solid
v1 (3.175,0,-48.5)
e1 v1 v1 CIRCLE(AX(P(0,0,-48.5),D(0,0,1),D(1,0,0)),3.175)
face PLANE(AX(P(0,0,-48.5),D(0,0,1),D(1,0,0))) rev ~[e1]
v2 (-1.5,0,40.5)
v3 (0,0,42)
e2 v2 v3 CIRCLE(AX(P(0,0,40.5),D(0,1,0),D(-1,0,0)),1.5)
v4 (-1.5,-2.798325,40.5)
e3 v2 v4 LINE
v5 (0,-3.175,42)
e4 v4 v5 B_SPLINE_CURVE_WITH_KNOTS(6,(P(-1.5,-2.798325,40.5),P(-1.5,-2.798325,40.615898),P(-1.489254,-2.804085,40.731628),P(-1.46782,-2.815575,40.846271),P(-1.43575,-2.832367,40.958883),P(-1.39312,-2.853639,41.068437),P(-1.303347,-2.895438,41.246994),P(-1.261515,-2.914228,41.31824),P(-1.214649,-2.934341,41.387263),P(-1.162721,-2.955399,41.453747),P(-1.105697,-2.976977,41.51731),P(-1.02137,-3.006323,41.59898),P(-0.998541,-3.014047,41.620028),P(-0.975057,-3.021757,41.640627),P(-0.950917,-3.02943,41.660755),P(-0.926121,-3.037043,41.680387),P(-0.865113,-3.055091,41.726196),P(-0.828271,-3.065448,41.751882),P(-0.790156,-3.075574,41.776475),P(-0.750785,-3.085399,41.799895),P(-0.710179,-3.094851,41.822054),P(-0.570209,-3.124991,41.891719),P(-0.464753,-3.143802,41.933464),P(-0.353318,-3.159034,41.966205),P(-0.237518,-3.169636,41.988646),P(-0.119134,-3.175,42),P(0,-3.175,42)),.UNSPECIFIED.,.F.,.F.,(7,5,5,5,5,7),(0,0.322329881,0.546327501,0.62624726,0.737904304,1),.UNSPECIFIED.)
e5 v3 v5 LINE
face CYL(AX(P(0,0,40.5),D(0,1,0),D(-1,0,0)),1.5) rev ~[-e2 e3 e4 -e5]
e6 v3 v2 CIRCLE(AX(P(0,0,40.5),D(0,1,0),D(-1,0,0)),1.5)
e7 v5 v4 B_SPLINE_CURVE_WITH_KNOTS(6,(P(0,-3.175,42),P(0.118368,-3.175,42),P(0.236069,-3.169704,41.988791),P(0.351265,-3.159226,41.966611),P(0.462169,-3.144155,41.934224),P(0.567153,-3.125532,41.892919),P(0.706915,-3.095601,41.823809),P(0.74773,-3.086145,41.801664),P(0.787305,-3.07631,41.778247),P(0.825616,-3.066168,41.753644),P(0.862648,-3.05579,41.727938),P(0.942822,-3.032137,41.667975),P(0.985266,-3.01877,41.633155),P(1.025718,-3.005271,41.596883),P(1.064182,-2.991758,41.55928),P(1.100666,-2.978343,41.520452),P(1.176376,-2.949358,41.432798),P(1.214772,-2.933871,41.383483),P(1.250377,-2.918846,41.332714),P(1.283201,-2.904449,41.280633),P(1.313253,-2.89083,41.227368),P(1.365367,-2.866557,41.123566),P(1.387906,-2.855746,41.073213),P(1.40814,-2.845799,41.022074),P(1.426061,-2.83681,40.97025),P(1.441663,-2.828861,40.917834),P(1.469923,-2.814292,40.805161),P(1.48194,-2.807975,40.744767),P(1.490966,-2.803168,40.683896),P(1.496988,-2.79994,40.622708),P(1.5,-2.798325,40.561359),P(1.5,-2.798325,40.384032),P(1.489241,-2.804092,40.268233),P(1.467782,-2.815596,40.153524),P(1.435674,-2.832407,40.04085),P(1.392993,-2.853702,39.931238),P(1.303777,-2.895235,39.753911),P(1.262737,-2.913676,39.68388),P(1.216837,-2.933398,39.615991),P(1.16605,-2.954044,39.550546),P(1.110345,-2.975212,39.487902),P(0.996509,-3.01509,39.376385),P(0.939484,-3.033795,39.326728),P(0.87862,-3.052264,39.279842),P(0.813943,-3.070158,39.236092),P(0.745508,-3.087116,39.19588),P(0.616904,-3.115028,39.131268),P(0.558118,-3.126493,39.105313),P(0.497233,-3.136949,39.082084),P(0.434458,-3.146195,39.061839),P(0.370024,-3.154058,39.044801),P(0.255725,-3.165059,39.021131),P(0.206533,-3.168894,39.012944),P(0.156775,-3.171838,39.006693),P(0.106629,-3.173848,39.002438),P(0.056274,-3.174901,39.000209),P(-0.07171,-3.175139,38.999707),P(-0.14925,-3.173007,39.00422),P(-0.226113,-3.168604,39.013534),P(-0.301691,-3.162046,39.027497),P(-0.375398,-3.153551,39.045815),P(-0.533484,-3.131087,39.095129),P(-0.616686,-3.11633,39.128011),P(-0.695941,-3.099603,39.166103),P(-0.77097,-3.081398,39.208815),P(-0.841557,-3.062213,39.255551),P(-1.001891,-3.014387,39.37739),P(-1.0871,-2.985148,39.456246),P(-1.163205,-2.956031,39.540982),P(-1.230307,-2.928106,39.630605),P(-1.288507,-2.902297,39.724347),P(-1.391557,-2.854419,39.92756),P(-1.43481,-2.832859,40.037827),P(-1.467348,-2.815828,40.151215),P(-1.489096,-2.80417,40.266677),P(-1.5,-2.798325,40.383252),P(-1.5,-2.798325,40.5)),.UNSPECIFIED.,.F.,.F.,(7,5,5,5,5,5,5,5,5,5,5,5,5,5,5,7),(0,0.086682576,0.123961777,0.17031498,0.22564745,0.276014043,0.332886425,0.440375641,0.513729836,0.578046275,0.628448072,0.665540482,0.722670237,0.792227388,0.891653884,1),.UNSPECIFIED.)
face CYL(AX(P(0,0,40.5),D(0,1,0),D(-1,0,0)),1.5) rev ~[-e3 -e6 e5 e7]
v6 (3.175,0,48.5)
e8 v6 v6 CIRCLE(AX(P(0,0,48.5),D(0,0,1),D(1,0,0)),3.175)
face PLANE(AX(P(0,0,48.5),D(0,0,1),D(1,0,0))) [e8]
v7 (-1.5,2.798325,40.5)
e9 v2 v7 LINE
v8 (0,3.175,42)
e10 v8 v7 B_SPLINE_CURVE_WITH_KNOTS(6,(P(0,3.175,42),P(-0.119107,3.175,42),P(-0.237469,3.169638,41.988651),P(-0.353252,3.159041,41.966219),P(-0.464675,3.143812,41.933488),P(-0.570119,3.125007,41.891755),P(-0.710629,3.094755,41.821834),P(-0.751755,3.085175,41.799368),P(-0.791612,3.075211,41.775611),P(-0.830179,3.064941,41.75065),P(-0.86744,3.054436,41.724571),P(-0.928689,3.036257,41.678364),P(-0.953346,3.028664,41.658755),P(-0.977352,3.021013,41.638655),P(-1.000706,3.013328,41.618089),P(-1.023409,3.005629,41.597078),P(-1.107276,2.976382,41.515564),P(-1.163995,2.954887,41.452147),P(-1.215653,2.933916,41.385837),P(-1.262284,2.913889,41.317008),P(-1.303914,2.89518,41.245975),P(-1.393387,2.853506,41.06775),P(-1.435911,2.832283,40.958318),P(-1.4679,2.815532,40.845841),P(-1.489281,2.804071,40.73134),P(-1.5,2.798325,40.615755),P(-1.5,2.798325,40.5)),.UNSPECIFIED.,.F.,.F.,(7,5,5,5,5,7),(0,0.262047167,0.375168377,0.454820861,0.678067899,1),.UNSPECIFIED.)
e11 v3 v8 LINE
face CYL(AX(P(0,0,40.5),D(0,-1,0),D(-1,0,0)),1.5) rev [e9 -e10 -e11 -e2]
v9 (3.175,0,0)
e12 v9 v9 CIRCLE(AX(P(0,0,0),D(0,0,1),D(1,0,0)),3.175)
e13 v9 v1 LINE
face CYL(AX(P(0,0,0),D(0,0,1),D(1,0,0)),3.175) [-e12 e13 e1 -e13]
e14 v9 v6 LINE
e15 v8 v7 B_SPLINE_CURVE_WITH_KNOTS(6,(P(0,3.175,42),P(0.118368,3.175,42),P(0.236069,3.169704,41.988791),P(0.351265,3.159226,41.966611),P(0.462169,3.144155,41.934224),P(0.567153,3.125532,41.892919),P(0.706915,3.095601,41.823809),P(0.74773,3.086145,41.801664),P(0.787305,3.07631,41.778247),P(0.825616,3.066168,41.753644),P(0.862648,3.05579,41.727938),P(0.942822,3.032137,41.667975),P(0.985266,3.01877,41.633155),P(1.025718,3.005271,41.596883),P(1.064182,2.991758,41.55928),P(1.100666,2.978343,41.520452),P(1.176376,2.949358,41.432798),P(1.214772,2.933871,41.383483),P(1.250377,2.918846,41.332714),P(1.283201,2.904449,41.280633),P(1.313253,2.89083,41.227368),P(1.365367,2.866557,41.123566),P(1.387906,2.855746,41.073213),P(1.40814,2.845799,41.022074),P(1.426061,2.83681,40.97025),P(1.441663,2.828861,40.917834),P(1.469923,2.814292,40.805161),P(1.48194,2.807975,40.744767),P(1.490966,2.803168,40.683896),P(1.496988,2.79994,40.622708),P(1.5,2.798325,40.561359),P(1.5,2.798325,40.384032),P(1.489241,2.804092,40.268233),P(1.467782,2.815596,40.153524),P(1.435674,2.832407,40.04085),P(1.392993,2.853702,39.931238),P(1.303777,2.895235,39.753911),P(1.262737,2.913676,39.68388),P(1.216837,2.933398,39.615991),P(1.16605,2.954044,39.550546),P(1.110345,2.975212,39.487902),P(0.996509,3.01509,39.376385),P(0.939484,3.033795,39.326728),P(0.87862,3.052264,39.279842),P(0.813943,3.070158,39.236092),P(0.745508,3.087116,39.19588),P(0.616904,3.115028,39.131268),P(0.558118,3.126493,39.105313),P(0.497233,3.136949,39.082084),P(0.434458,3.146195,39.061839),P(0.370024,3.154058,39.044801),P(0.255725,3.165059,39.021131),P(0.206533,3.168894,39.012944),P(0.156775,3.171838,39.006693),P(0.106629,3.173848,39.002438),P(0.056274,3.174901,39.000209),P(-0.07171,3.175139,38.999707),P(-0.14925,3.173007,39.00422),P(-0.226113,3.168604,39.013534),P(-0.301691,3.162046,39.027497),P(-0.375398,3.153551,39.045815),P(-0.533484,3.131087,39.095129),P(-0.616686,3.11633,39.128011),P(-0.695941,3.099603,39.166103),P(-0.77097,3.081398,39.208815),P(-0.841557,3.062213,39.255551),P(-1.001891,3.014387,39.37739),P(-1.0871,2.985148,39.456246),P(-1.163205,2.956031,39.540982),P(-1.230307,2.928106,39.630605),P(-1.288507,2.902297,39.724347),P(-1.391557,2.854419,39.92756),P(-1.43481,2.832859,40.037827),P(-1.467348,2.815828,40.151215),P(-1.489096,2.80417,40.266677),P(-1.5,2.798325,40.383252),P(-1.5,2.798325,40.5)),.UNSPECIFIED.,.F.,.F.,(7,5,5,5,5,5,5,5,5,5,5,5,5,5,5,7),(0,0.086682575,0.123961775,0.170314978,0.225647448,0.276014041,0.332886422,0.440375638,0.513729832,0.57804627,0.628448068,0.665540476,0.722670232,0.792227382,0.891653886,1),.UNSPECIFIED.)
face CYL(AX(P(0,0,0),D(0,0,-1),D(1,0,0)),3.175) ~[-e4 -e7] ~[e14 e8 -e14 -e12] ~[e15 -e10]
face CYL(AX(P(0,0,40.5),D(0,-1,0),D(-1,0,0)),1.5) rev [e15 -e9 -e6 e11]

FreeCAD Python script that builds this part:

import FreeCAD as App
import Part
import Sketcher

V = App.Vector

doc = App.newDocument("Part")
params = doc.addObject("Spreadsheet::Sheet", "Params")
for row, (alias, value) in enumerate([
    ("sketch1_diameter", "6.35 mm"),
    ("pad1_length", "97 mm"),
    ("sketch2_diameter", "3 mm"),
    ("pocket1_length", "6.4 mm"),
], start=1):
    params.set(f"A{row}", alias)
    params.set(f"B{row}", "=" + value)
    params.setAlias(f"B{row}", alias)

body = doc.addObject("PartDesign::Body", "Body")

sketch1 = doc.addObject("Sketcher::SketchObject", "Sketch")
body.addObject(sketch1)
sketch1.AttachmentSupport = (doc.XY_Plane, [""])
sketch1.MapMode = "FlatFace"
sketch1.addGeometry(Part.Circle(V(0, 0, 0), V(0, 0, 1), 3.175), False)
sketch1.addConstraint([
    Sketcher.Constraint("Coincident", 0, 3, -1, 1),
    Sketcher.Constraint("Diameter", 0, 6.35),
])
sketch1.setExpression("Constraints[1]", "Params.sketch1_diameter")
pad1 = doc.addObject("PartDesign::Pad", "Pad")
body.addObject(pad1)
pad1.Profile = sketch1
pad1.setExpression("Length", "Params.pad1_length")
pad1.Midplane = True

sketch2 = doc.addObject("Sketcher::SketchObject", "Sketch001")
body.addObject(sketch2)
sketch2.AttachmentSupport = (doc.XZ_Plane, [""])
sketch2.MapMode = "FlatFace"
sketch2.addGeometry(Part.Circle(V(0, 40.5, 0), V(0, 0, 1), 1.5), False)
sketch2.addConstraint([
    Sketcher.Constraint("PointOnObject", 0, 3, -2),
    Sketcher.Constraint("Diameter", 0, 3.0),
    Sketcher.Constraint("DistanceY", -1, 1, 0, 3, 40.5),
])
sketch2.setExpression("Constraints[1]", "Params.sketch2_diameter")
pocket1 = doc.addObject("PartDesign::Pocket", "Pocket")
body.addObject(pocket1)
pocket1.Profile = sketch2
pocket1.setExpression("Length", "Params.pocket1_length")
pocket1.Midplane = True

doc.recompute()
